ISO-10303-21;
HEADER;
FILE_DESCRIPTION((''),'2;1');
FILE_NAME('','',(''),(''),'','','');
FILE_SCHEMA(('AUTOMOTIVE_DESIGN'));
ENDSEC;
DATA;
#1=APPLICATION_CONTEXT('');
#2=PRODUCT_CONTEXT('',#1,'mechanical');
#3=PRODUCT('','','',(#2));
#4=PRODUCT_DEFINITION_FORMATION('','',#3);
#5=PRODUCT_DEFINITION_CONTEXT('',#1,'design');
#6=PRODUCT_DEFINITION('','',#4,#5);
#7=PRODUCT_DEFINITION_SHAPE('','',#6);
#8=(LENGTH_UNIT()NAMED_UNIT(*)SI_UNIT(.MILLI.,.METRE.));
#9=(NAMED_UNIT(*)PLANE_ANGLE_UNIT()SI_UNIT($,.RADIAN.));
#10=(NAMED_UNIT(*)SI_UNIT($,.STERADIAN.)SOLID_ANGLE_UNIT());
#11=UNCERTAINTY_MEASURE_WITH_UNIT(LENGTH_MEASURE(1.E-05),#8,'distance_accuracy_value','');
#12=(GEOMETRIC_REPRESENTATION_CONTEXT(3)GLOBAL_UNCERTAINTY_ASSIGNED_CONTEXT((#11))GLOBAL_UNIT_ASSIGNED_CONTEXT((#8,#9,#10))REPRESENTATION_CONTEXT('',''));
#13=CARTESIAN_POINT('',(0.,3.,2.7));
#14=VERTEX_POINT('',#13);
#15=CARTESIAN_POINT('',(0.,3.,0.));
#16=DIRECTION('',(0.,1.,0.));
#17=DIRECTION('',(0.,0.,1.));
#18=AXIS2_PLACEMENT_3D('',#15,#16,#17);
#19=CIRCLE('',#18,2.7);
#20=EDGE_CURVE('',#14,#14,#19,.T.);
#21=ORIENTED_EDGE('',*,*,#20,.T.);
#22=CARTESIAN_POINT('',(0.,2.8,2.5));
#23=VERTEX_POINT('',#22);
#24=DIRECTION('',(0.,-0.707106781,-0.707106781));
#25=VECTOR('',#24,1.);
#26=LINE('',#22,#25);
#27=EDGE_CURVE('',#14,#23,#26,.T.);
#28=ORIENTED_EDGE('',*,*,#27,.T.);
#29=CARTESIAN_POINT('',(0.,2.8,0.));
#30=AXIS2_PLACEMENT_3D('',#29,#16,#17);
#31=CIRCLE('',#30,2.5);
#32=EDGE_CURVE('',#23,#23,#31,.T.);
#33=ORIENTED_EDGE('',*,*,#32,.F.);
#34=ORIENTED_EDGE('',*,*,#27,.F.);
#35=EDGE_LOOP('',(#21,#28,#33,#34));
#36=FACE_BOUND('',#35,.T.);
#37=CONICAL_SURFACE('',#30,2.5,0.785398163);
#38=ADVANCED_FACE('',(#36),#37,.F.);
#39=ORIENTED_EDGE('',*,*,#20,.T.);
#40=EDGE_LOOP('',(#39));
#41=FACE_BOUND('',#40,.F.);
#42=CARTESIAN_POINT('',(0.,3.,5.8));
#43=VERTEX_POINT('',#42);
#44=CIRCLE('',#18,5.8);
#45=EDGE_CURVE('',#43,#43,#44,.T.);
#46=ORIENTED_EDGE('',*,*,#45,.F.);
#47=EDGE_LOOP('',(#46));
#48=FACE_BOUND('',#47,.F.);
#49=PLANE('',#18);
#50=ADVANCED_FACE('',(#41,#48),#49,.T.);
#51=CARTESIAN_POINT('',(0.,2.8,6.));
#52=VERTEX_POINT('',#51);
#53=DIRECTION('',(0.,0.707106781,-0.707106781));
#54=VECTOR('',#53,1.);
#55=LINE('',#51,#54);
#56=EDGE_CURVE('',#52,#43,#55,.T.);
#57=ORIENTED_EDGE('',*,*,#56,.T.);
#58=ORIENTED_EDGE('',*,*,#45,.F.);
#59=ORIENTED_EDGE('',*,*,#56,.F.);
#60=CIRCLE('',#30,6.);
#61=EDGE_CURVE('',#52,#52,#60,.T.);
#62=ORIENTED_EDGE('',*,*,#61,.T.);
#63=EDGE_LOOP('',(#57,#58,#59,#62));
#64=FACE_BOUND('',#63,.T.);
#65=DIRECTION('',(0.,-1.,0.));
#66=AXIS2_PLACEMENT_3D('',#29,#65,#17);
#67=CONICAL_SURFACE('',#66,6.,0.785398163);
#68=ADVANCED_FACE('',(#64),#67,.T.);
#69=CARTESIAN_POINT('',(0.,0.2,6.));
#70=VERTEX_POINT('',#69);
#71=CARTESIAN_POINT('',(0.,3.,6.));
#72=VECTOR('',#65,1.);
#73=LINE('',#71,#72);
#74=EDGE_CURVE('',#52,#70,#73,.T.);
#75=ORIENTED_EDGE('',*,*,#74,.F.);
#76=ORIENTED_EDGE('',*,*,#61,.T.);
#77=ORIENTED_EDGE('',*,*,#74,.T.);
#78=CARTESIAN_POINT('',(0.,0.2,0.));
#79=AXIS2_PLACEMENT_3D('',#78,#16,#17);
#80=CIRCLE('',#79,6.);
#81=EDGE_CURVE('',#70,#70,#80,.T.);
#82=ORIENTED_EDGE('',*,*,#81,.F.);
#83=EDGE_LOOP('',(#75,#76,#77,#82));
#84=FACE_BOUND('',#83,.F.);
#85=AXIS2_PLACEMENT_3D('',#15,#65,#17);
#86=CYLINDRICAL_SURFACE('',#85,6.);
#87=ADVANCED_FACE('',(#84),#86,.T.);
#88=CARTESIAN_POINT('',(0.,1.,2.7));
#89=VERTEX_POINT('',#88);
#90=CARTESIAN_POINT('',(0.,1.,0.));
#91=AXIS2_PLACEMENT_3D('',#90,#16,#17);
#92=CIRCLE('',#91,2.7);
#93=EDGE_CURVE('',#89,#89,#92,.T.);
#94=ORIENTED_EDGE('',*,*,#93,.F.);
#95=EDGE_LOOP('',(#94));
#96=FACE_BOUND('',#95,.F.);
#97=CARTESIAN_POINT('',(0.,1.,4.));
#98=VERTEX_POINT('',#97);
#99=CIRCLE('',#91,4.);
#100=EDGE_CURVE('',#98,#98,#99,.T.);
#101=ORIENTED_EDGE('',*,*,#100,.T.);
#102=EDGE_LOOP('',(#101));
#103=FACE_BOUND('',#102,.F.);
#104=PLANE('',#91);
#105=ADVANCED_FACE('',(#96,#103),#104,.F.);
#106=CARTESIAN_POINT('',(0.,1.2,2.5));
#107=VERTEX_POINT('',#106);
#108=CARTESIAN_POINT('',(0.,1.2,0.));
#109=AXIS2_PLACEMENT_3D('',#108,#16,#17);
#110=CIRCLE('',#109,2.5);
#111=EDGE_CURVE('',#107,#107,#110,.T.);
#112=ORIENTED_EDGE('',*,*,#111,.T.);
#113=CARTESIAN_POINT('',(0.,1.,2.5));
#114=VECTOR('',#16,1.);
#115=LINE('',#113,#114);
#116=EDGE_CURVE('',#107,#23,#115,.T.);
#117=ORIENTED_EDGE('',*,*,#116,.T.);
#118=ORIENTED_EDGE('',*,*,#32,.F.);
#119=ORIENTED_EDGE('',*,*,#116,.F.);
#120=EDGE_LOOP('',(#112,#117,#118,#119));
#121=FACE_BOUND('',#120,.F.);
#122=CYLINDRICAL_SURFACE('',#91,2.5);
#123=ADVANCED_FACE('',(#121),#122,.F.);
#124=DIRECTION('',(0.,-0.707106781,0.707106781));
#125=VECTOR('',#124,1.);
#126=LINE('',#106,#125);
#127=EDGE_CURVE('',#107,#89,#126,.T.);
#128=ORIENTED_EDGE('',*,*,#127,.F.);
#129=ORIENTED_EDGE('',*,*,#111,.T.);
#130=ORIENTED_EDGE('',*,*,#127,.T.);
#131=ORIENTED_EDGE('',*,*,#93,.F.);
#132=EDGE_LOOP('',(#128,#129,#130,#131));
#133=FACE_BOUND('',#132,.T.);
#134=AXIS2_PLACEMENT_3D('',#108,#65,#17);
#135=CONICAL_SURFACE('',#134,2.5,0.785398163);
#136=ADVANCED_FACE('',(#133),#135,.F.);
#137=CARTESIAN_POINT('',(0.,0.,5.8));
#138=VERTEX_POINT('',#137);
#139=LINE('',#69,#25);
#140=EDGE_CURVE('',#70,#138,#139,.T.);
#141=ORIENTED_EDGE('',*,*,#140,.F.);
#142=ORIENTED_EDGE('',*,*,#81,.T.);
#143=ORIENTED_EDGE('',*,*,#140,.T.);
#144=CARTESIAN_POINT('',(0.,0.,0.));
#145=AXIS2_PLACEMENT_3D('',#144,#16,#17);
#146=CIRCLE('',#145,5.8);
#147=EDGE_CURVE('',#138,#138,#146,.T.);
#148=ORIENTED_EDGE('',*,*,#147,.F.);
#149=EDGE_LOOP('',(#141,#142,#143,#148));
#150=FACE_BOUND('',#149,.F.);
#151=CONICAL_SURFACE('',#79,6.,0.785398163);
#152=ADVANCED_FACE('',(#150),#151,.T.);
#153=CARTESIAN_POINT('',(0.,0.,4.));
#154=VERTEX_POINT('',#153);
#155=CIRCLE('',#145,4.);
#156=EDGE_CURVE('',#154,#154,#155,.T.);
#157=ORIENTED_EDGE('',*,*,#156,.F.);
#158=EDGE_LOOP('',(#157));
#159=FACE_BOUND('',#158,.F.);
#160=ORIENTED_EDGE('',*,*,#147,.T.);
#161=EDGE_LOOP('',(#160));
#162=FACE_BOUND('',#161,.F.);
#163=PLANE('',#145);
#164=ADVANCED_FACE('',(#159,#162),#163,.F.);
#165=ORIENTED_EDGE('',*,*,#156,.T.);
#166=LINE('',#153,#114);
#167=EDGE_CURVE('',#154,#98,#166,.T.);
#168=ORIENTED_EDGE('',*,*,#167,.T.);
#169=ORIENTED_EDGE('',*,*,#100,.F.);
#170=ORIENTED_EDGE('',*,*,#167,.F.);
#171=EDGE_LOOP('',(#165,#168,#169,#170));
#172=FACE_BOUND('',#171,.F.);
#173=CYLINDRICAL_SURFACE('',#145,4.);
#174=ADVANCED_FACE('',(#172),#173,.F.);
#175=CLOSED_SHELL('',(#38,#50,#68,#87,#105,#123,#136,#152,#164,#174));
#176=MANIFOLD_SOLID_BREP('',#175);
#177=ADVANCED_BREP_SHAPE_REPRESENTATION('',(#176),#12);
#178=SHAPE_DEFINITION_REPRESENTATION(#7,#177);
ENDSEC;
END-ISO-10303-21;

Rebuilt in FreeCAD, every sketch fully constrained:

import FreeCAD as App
import Part
import Sketcher


def edges_at(feature, points):
    """Names of the edges that pass closest to the given points."""
    edges = feature.Shape.Edges
    near = lambda p: min(range(len(edges)), key=lambda i: edges[i].distToShape(Part.Vertex(*p))[0])
    return sorted({f"Edge{near(p) + 1}" for p in points})

doc = App.newDocument("Part")
body = doc.addObject("PartDesign::Body", "Body")

sketch1 = body.newObject("Sketcher::SketchObject", "Sketch")
sketch1.AttachmentSupport = (doc.getObject("YZ_Plane"), [""])
sketch1.MapMode = "FlatFace"
sketch1.addGeometry([
    Part.LineSegment(App.Vector(3, 6, 0), App.Vector(0, 6, 0)),
    Part.LineSegment(App.Vector(0, 6, 0), App.Vector(0, 4, 0)),
    Part.LineSegment(App.Vector(0, 4, 0), App.Vector(1, 4, 0)),
    Part.LineSegment(App.Vector(1, 4, 0), App.Vector(1, 2.5, 0)),
    Part.LineSegment(App.Vector(1, 2.5, 0), App.Vector(3, 2.5, 0)),
    Part.LineSegment(App.Vector(3, 2.5, 0), App.Vector(3, 6, 0)),
], False)
sketch1.addConstraint([
    Sketcher.Constraint("Coincident", 0, 2, 1, 1),
    Sketcher.Constraint("Coincident", 1, 2, 2, 1),
    Sketcher.Constraint("Coincident", 2, 2, 3, 1),
    Sketcher.Constraint("Coincident", 3, 2, 4, 1),
    Sketcher.Constraint("Coincident", 4, 2, 5, 1),
    Sketcher.Constraint("Coincident", 5, 2, 0, 1),
    Sketcher.Constraint("Horizontal", 0),
    Sketcher.Constraint("Vertical", 1),
    Sketcher.Constraint("Horizontal", 2),
    Sketcher.Constraint("Vertical", 3),
    Sketcher.Constraint("Horizontal", 4),
    Sketcher.Constraint("Vertical", 5),
    Sketcher.Constraint("PointOnObject", 0, 2, -2),
    Sketcher.Constraint("Equal", 4, 1),
    Sketcher.Constraint("DistanceX", 0, 2, 0, 1, 3.0),
    Sketcher.Constraint("DistanceX", 2, 1, 2, 2, 1.0),
    Sketcher.Constraint("DistanceY", 3, 2, 3, 1, 1.5),
    Sketcher.Constraint("DistanceY", -1, 1, 0, 2, 6.0),
])
revolution = body.newObject("PartDesign::Revolution", "Revolution")
revolution.Profile = sketch1
revolution.ReferenceAxis = (sketch1, ["H_Axis"])
revolution.Angle = 360
doc.recompute()

chamfer = body.newObject("PartDesign::Chamfer", "Chamfer")
chamfer.Base = (revolution, edges_at(revolution, [
    (0, 3, -6),
    (0, 0, -6),
    (0, 3, -2.5),
    (0, 1, -2.5),
]))
chamfer.Size = 0.2

doc.recompute()
